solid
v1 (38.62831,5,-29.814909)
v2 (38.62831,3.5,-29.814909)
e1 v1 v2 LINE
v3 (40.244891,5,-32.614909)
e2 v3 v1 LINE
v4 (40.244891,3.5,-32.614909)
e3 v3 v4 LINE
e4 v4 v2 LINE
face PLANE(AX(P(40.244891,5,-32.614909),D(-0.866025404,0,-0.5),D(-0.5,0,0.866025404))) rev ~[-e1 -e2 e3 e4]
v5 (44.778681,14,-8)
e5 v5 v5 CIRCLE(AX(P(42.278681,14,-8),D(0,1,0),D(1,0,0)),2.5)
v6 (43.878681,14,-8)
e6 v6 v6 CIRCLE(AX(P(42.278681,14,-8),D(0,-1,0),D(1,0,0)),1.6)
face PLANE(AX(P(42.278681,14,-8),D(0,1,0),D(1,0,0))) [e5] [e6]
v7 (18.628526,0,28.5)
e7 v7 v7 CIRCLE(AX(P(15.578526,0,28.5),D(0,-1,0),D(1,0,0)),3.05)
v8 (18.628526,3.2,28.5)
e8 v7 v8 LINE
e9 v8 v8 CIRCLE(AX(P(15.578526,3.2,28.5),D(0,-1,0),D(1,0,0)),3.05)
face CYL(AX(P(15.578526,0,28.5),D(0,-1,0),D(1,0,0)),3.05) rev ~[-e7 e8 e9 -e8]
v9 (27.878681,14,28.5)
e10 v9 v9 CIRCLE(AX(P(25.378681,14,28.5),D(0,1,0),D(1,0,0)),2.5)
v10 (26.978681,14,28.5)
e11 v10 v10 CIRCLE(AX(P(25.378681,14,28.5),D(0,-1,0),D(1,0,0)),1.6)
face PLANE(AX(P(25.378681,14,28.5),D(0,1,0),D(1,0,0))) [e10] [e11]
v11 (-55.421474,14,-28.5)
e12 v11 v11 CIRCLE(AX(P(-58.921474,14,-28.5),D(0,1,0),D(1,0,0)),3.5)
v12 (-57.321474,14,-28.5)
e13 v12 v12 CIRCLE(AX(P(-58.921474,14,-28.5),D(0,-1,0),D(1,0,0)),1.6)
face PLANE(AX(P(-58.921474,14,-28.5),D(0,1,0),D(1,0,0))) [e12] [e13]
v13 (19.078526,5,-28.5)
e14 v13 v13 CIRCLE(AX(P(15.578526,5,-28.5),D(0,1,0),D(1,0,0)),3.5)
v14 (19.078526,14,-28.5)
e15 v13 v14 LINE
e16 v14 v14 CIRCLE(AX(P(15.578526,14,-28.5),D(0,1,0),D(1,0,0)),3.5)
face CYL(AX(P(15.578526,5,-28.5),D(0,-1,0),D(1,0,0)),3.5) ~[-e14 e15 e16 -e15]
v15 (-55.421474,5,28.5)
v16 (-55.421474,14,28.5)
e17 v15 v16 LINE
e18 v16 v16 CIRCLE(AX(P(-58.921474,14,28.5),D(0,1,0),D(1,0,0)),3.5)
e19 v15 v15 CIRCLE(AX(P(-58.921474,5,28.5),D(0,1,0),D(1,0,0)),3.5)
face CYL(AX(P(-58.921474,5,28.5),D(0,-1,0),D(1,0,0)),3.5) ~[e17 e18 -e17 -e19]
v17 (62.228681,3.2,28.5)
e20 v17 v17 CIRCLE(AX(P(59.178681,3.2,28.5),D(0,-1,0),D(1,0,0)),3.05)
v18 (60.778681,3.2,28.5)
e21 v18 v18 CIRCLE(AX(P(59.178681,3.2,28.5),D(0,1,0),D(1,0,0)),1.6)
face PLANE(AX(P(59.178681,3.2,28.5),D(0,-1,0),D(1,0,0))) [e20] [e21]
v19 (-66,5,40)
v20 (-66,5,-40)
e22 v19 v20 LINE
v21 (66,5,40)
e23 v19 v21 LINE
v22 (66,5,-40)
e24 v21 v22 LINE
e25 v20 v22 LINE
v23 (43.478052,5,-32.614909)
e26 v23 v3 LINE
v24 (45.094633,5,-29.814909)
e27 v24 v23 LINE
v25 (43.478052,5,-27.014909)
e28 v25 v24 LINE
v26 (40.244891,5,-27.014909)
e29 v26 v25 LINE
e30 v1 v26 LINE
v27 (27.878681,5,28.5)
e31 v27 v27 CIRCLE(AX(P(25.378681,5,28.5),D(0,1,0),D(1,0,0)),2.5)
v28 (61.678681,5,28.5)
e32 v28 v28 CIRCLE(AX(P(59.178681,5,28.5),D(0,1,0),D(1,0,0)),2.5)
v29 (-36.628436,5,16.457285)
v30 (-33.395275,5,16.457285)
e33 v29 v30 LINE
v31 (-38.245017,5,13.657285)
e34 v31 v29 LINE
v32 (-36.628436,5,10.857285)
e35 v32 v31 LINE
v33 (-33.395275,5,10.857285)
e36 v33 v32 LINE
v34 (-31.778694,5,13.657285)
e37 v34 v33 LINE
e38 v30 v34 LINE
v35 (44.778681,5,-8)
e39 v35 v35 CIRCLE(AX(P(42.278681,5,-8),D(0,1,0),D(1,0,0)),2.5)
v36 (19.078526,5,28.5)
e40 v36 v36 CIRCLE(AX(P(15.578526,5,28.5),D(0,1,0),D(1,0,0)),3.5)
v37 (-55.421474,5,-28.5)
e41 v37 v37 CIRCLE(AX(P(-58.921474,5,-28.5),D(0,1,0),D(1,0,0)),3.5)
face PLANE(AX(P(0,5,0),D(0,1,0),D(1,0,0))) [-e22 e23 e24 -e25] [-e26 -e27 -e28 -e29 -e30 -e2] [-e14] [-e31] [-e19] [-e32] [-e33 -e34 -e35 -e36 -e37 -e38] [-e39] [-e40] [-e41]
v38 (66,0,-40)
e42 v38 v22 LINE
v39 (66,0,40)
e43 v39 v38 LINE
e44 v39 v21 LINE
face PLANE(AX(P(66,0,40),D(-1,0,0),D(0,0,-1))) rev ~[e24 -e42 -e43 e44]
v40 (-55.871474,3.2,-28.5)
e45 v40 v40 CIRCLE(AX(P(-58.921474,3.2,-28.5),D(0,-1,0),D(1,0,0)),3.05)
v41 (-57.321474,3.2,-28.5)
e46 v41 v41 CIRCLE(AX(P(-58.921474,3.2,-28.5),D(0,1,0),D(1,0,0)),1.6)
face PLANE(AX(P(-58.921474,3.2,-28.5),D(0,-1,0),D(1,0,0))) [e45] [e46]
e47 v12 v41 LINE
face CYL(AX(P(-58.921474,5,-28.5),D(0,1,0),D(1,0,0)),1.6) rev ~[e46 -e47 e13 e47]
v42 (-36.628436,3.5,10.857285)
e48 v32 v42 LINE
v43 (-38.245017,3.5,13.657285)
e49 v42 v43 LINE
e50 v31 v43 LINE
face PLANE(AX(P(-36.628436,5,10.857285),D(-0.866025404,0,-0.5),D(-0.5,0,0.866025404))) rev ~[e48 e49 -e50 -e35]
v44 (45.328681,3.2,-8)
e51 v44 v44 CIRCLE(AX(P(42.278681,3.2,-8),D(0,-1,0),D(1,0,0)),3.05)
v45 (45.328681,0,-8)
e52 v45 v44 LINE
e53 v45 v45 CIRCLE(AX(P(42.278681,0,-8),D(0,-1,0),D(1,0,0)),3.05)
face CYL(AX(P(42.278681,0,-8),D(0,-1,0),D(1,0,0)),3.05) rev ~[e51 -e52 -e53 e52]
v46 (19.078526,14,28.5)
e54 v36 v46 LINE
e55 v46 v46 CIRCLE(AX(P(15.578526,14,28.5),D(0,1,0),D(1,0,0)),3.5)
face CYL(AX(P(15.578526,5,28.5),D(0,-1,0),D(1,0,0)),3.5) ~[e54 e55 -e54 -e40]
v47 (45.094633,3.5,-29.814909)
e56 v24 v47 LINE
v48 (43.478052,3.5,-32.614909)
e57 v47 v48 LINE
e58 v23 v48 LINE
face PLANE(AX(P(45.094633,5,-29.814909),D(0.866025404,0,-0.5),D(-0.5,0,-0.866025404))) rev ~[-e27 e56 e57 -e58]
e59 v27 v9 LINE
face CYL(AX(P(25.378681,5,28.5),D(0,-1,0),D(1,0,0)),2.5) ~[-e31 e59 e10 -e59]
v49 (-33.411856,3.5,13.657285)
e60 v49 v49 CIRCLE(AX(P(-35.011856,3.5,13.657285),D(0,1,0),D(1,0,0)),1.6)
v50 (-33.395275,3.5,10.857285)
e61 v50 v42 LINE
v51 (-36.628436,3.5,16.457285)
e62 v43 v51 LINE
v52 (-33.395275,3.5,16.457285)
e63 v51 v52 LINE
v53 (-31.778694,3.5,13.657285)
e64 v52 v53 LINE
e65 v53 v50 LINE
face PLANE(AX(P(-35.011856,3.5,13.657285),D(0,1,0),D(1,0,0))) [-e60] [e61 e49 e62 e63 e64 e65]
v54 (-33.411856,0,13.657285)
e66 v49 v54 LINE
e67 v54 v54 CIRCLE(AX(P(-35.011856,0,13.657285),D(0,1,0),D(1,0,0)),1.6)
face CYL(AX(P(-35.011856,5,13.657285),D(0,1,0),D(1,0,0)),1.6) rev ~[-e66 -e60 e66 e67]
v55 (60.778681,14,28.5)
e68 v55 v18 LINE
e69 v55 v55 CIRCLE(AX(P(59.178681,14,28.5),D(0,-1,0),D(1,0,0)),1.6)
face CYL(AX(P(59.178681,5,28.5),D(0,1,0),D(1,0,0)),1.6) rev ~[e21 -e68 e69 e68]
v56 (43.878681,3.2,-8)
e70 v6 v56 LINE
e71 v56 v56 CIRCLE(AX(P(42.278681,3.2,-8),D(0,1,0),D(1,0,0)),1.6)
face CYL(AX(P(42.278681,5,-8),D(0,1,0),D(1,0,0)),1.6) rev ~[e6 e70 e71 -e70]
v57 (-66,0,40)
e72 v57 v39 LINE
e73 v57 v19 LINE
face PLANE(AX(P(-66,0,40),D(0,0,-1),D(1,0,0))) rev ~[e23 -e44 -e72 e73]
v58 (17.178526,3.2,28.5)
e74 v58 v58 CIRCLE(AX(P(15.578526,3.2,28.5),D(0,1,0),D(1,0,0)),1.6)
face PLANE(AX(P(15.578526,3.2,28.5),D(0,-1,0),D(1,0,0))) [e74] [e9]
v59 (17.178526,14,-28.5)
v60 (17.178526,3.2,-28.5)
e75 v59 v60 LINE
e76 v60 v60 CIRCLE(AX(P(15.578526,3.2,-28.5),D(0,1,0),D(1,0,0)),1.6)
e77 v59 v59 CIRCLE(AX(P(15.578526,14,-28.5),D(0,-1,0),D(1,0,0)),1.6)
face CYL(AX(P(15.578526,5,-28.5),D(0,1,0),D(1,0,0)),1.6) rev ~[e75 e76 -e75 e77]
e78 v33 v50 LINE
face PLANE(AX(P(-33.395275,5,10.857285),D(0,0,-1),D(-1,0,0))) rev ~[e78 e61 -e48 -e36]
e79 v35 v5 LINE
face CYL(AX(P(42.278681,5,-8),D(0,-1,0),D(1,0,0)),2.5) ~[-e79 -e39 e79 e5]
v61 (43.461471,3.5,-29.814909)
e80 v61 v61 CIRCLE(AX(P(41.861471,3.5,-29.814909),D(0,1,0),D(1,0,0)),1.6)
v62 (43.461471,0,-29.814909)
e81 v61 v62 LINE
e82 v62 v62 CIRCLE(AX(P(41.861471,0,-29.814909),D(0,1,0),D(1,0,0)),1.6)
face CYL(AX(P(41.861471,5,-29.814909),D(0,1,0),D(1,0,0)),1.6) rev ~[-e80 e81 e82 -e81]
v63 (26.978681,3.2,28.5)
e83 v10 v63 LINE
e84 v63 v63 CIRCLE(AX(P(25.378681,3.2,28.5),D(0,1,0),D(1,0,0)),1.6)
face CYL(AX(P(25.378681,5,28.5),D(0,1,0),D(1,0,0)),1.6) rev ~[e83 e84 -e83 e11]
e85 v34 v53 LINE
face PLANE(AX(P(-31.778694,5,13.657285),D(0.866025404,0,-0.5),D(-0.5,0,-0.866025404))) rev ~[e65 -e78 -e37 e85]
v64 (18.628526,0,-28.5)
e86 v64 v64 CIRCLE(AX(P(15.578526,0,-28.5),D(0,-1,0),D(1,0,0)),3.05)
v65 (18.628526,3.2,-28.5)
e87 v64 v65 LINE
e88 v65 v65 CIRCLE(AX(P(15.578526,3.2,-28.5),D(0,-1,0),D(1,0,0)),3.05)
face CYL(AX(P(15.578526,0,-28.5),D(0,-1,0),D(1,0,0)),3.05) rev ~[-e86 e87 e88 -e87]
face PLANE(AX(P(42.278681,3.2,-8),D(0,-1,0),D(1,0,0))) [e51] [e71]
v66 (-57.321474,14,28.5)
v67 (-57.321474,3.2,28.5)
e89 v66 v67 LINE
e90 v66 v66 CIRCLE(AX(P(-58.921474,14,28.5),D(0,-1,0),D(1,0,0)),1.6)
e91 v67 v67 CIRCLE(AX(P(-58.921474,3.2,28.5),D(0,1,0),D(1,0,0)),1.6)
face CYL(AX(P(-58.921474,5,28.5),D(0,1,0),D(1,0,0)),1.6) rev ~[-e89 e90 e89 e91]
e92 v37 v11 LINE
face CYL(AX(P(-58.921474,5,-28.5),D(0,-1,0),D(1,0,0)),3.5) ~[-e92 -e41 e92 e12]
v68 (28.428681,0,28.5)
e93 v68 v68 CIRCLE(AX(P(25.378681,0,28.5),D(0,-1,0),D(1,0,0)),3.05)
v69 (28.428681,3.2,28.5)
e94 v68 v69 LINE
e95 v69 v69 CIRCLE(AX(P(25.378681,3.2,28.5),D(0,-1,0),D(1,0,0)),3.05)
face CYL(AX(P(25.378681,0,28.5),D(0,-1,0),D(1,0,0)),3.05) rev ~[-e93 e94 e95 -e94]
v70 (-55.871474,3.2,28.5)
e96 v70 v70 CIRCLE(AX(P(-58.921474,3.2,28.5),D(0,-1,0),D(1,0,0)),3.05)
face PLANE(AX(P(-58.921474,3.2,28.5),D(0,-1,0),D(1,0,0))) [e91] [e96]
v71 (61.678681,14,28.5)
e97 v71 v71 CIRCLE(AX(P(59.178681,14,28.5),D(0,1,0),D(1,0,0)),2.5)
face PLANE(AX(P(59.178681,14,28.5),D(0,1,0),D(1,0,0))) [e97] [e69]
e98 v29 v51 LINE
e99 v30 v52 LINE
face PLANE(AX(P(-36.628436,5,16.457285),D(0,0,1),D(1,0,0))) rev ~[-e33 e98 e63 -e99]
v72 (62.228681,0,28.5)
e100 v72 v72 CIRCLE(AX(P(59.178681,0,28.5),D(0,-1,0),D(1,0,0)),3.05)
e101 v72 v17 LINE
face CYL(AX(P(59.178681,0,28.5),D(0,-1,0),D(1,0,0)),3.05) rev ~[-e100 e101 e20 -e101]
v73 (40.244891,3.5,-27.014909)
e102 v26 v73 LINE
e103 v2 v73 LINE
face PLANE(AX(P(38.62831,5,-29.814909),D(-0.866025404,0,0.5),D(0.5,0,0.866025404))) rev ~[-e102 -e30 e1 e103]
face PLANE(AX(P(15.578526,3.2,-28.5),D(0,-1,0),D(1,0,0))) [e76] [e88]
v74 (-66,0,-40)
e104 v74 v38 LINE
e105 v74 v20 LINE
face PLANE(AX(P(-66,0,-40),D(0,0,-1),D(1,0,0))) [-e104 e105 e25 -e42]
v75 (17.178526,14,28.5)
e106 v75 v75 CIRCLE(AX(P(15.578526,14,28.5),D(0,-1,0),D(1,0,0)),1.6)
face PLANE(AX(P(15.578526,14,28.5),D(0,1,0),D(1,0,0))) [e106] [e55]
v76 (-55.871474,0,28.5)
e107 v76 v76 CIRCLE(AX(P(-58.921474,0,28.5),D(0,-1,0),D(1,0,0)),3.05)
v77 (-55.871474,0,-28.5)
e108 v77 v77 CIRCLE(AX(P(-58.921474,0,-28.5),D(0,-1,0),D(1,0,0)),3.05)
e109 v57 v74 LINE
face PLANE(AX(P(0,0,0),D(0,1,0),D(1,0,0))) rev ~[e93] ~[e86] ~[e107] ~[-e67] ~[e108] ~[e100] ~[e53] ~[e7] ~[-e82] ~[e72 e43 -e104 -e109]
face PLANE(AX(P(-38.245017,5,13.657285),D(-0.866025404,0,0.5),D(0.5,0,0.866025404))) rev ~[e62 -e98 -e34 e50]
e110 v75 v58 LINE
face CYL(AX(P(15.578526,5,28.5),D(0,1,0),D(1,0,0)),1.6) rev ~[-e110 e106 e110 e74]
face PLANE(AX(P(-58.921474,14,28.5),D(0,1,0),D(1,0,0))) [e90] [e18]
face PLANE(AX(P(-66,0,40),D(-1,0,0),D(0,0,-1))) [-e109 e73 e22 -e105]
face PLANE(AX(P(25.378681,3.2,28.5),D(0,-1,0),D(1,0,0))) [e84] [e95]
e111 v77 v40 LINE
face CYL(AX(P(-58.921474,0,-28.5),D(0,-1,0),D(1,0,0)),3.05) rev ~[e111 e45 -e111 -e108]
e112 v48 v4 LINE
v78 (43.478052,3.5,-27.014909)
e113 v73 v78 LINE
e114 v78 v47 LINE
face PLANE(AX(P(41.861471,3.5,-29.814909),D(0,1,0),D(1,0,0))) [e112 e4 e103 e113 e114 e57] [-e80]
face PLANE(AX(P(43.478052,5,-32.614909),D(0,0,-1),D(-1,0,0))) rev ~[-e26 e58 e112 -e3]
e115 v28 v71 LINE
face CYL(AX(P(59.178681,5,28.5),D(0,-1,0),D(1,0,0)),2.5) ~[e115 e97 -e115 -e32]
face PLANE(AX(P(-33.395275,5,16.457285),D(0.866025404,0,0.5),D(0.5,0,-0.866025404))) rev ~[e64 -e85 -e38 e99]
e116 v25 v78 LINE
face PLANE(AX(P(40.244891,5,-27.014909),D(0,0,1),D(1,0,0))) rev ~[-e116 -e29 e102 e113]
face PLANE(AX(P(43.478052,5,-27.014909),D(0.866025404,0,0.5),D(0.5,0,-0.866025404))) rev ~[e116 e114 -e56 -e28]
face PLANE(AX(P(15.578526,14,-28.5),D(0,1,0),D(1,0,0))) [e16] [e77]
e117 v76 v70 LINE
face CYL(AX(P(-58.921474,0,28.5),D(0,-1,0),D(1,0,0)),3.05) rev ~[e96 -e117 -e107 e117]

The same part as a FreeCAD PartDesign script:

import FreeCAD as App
import Part
import Sketcher

V = App.Vector
Q = App.Units.Quantity

doc = App.newDocument("Part")
body = doc.addObject("PartDesign::Body", "Body")

sketch1 = body.newObject("Sketcher::SketchObject", "Sketch")
sketch1.AttachmentSupport = (doc.getObject("XZ_Plane"), [""])
sketch1.MapMode = "FlatFace"
sketch1.addGeometry(Part.LineSegment(V(-66, -40, 0), V(-66, 40, 0)), False)
sketch1.addGeometry(Part.LineSegment(V(-66, 40, 0), V(66, 40, 0)), False)
sketch1.addGeometry(Part.LineSegment(V(66, 40, 0), V(66, -40, 0)), False)
sketch1.addGeometry(Part.LineSegment(V(66, -40, 0), V(-66, -40, 0)), False)
sketch1.addConstraint(Sketcher.Constraint("Coincident", 0, 2, 1, 1))
sketch1.addConstraint(Sketcher.Constraint("Coincident", 1, 2, 2, 1))
sketch1.addConstraint(Sketcher.Constraint("Coincident", 2, 2, 3, 1))
sketch1.addConstraint(Sketcher.Constraint("Coincident", 3, 2, 0, 1))
sketch1.addConstraint(Sketcher.Constraint("Vertical", 0))
sketch1.addConstraint(Sketcher.Constraint("Horizontal", 1))
sketch1.addConstraint(Sketcher.Constraint("Vertical", 2))
sketch1.addConstraint(Sketcher.Constraint("Horizontal", 3))
sketch1.addConstraint(Sketcher.Constraint("Symmetric", 0, 2, 2, 2, -1, 1))
sketch1.addConstraint(Sketcher.Constraint("DistanceX", 1, 1, 1, 2, Q("132 mm")))
sketch1.addConstraint(Sketcher.Constraint("DistanceY", 0, 1, 0, 2, Q("80 mm")))
pad1 = body.newObject("PartDesign::Pad", "Pad")
pad1.Profile = sketch1
pad1.Length = 5
pad1.Reversed = True

sketch2 = body.newObject("Sketcher::SketchObject", "Sketch001")
sketch2.AttachmentSupport = (doc.getObject("XZ_Plane"), [""])
sketch2.MapMode = "FlatFace"
sketch2.AttachmentOffset = App.Placement(V(0, 0, -5), App.Rotation())
sketch2.addGeometry(Part.Circle(V(-58.9, -28.5, 0), V(0, 0, 1), 3.5), False)
sketch2.addGeometry(Part.Circle(V(15.6, -28.5, 0), V(0, 0, 1), 3.5), False)
sketch2.addGeometry(Part.Circle(V(15.6, 28.5, 0), V(0, 0, 1), 3.5), False)
sketch2.addGeometry(Part.Circle(V(-58.9, 28.5, 0), V(0, 0, 1), 3.5), False)
sketch2.addGeometry(Part.Circle(V(25.4, 28.5, 0), V(0, 0, 1), 2.5), False)
sketch2.addGeometry(Part.Circle(V(59.2, 28.5, 0), V(0, 0, 1), 2.5), False)
sketch2.addGeometry(Part.Circle(V(42.3, -8, 0), V(0, 0, 1), 2.5), False)
sketch2.addConstraint(Sketcher.Constraint("Equal", 0, 1))
sketch2.addConstraint(Sketcher.Constraint("Equal", 1, 2))
sketch2.addConstraint(Sketcher.Constraint("Equal", 2, 3))
sketch2.addConstraint(Sketcher.Constraint("Equal", 4, 5))
sketch2.addConstraint(Sketcher.Constraint("Equal", 5, 6))
sketch2.addConstraint(Sketcher.Constraint("Symmetric", 1, 3, 2, 3, -1))
sketch2.addConstraint(Sketcher.Constraint("Symmetric", 0, 3, 3, 3, -1))
sketch2.addConstraint(Sketcher.Constraint("Horizontal", 0, 3, 1, 3))
sketch2.addConstraint(Sketcher.Constraint("Horizontal", 3, 3, 4, 3))
sketch2.addConstraint(Sketcher.Constraint("Horizontal", 4, 3, 5, 3))
sketch2.addConstraint(Sketcher.Constraint("Diameter", 0, Q("7 mm")))
sketch2.addConstraint(Sketcher.Constraint("Diameter", 4, Q("5 mm")))
sketch2.addConstraint(Sketcher.Constraint("DistanceY", 6, 3, -1, 1, Q("8 mm")))
sketch2.addConstraint(Sketcher.Constraint("DistanceY", 1, 3, 2, 3, Q("57 mm")))
sketch2.addConstraint(Sketcher.Constraint("DistanceX", 0, 3, 1, 3, Q("74.5 mm")))
sketch2.addConstraint(Sketcher.Constraint("DistanceX", 4, 3, 5, 3, Q("33.8 mm")))
sketch2.addConstraint(Sketcher.Constraint("DistanceX", 4, 3, 6, 3, Q("16.9 mm")))
sketch2.addConstraint(Sketcher.Constraint("DistanceX", -1, 1, 4, 3, Q("25.378681 mm")))
sketch2.addConstraint(Sketcher.Constraint("DistanceX", 0, 3, -1, 1, Q("58.921474 mm")))
pad2 = body.newObject("PartDesign::Pad", "Pad001")
pad2.Profile = sketch2
pad2.Length = 9
pad2.Reversed = True

sketch3 = body.newObject("Sketcher::SketchObject", "Sketch002")
sketch3.AttachmentSupport = (doc.getObject("XZ_Plane"), [""])
sketch3.MapMode = "FlatFace"
sketch3.AttachmentOffset = App.Placement(V(0, 0, -5), App.Rotation())
sketch3.addGeometry(Part.Circle(V(42.3, -8, 0), V(0, 0, 1), 1.6), False)
sketch3.addConstraint(Sketcher.Constraint("Diameter", 0, Q("3.2 mm")))
sketch3.addConstraint(Sketcher.Constraint("DistanceY", 0, 3, -1, 1, Q("8 mm")))
sketch3.addConstraint(Sketcher.Constraint("DistanceX", -1, 1, 0, 3, Q("42.278681 mm")))
pocket1 = body.newObject("PartDesign::Pocket", "Pocket")
pocket1.Profile = sketch3
pocket1.Type = "UpToFirst"
pocket1.Reversed = True

sketch4 = body.newObject("Sketcher::SketchObject", "Sketch003")
sketch4.AttachmentSupport = (doc.getObject("XZ_Plane"), [""])
sketch4.MapMode = "FlatFace"
sketch4.AttachmentOffset = App.Placement(V(0, 0, -5), App.Rotation())
sketch4.addGeometry(Part.Circle(V(25.4, 28.5, 0), V(0, 0, 1), 1.6), False)
sketch4.addConstraint(Sketcher.Constraint("Diameter", 0, Q("3.2 mm")))
sketch4.addConstraint(Sketcher.Constraint("DistanceY", -1, 1, 0, 3, Q("28.5 mm")))
sketch4.addConstraint(Sketcher.Constraint("DistanceX", -1, 1, 0, 3, Q("25.378681 mm")))
pocket2 = body.newObject("PartDesign::Pocket", "Pocket001")
pocket2.Profile = sketch4
pocket2.Type = "UpToFirst"
pocket2.Reversed = True

sketch5 = body.newObject("Sketcher::SketchObject", "Sketch004")
sketch5.AttachmentSupport = (doc.getObject("XZ_Plane"), [""])
sketch5.MapMode = "FlatFace"
sketch5.AttachmentOffset = App.Placement(V(0, 0, -5), App.Rotation())
sketch5.addGeometry(Part.Circle(V(59.2, 28.5, 0), V(0, 0, 1), 1.6), False)
sketch5.addConstraint(Sketcher.Constraint("Diameter", 0, Q("3.2 mm")))
sketch5.addConstraint(Sketcher.Constraint("DistanceY", -1, 1, 0, 3, Q("28.5 mm")))
sketch5.addConstraint(Sketcher.Constraint("DistanceX", -1, 1, 0, 3, Q("59.178681 mm")))
pocket3 = body.newObject("PartDesign::Pocket", "Pocket002")
pocket3.Profile = sketch5
pocket3.Type = "UpToFirst"
pocket3.Reversed = True

sketch6 = body.newObject("Sketcher::SketchObject", "Sketch005")
sketch6.AttachmentSupport = (doc.getObject("XZ_Plane"), [""])
sketch6.MapMode = "FlatFace"
sketch6.AttachmentOffset = App.Placement(V(0, 0, -5), App.Rotation())
sketch6.addGeometry(Part.Circle(V(15.6, -28.5, 0), V(0, 0, 1), 1.6), False)
sketch6.addConstraint(Sketcher.Constraint("Diameter", 0, Q("3.2 mm")))
sketch6.addConstraint(Sketcher.Constraint("DistanceY", 0, 3, -1, 1, Q("28.5 mm")))
sketch6.addConstraint(Sketcher.Constraint("DistanceX", -1, 1, 0, 3, Q("15.578526 mm")))
pocket4 = body.newObject("PartDesign::Pocket", "Pocket003")
pocket4.Profile = sketch6
pocket4.Type = "UpToFirst"
pocket4.Reversed = True

sketch7 = body.newObject("Sketcher::SketchObject", "Sketch006")
sketch7.AttachmentSupport = (doc.getObject("XZ_Plane"), [""])
sketch7.MapMode = "FlatFace"
sketch7.AttachmentOffset = App.Placement(V(0, 0, -5), App.Rotation())
sketch7.addGeometry(Part.Circle(V(15.6, 28.5, 0), V(0, 0, 1), 1.6), False)
sketch7.addConstraint(Sketcher.Constraint("Diameter", 0, Q("3.2 mm")))
sketch7.addConstraint(Sketcher.Constraint("DistanceY", -1, 1, 0, 3, Q("28.5 mm")))
sketch7.addConstraint(Sketcher.Constraint("DistanceX", -1, 1, 0, 3, Q("15.578526 mm")))
pocket5 = body.newObject("PartDesign::Pocket", "Pocket004")
pocket5.Profile = sketch7
pocket5.Type = "UpToFirst"
pocket5.Reversed = True

sketch8 = body.newObject("Sketcher::SketchObject", "Sketch007")
sketch8.AttachmentSupport = (doc.getObject("XZ_Plane"), [""])
sketch8.MapMode = "FlatFace"
sketch8.AttachmentOffset = App.Placement(V(0, 0, -5), App.Rotation())
sketch8.addGeometry(Part.Circle(V(-58.9, 28.5, 0), V(0, 0, 1), 1.6), False)
sketch8.addConstraint(Sketcher.Constraint("Diameter", 0, Q("3.2 mm")))
sketch8.addConstraint(Sketcher.Constraint("DistanceY", -1, 1, 0, 3, Q("28.5 mm")))
sketch8.addConstraint(Sketcher.Constraint("DistanceX", 0, 3, -1, 1, Q("58.921474 mm")))
pocket6 = body.newObject("PartDesign::Pocket", "Pocket005")
pocket6.Profile = sketch8
pocket6.Type = "UpToFirst"
pocket6.Reversed = True

sketch9 = body.newObject("Sketcher::SketchObject", "Sketch008")
sketch9.AttachmentSupport = (doc.getObject("XZ_Plane"), [""])
sketch9.MapMode = "FlatFace"
sketch9.AttachmentOffset = App.Placement(V(0, 0, -5), App.Rotation())
sketch9.addGeometry(Part.Circle(V(-58.9, -28.5, 0), V(0, 0, 1), 1.6), False)
sketch9.addConstraint(Sketcher.Constraint("Diameter", 0, Q("3.2 mm")))
sketch9.addConstraint(Sketcher.Constraint("DistanceY", 0, 3, -1, 1, Q("28.5 mm")))
sketch9.addConstraint(Sketcher.Constraint("DistanceX", 0, 3, -1, 1, Q("58.921474 mm")))
pocket7 = body.newObject("PartDesign::Pocket", "Pocket006")
pocket7.Profile = sketch9
pocket7.Type = "UpToFirst"
pocket7.Reversed = True

sketch10 = body.newObject("Sketcher::SketchObject", "Sketch009")
sketch10.AttachmentSupport = (doc.getObject("XZ_Plane"), [""])
sketch10.MapMode = "FlatFace"
sketch10.AttachmentOffset = App.Placement(V(0, 0, -5), App.Rotation())
sketch10.addGeometry(Part.Circle(V(42.3, -8, 0), V(0, 0, 1), 1.6), False)
sketch10.addConstraint(Sketcher.Constraint("Diameter", 0, Q("3.2 mm")))
sketch10.addConstraint(Sketcher.Constraint("DistanceY", 0, 3, -1, 1, Q("8 mm")))
sketch10.addConstraint(Sketcher.Constraint("DistanceX", -1, 1, 0, 3, Q("42.278681 mm")))
pocket8 = body.newObject("PartDesign::Pocket", "Pocket007")
pocket8.Profile = sketch10
pocket8.Type = "UpToFirst"

sketch11 = body.newObject("Sketcher::SketchObject", "Sketch010")
sketch11.AttachmentSupport = (doc.getObject("XZ_Plane"), [""])
sketch11.MapMode = "FlatFace"
sketch11.AttachmentOffset = App.Placement(V(0, 0, -5), App.Rotation())
sketch11.addGeometry(Part.Circle(V(25.4, 28.5, 0), V(0, 0, 1), 1.6), False)
sketch11.addConstraint(Sketcher.Constraint("Diameter", 0, Q("3.2 mm")))
sketch11.addConstraint(Sketcher.Constraint("DistanceY", -1, 1, 0, 3, Q("28.5 mm")))
sketch11.addConstraint(Sketcher.Constraint("DistanceX", -1, 1, 0, 3, Q("25.378681 mm")))
pocket9 = body.newObject("PartDesign::Pocket", "Pocket008")
pocket9.Profile = sketch11
pocket9.Type = "UpToFirst"

sketch12 = body.newObject("Sketcher::SketchObject", "Sketch011")
sketch12.AttachmentSupport = (doc.getObject("XZ_Plane"), [""])
sketch12.MapMode = "FlatFace"
sketch12.AttachmentOffset = App.Placement(V(0, 0, -5), App.Rotation())
sketch12.addGeometry(Part.Circle(V(59.2, 28.5, 0), V(0, 0, 1), 1.6), False)
sketch12.addConstraint(Sketcher.Constraint("Diameter", 0, Q("3.2 mm")))
sketch12.addConstraint(Sketcher.Constraint("DistanceY", -1, 1, 0, 3, Q("28.5 mm")))
sketch12.addConstraint(Sketcher.Constraint("DistanceX", -1, 1, 0, 3, Q("59.178681 mm")))
pocket10 = body.newObject("PartDesign::Pocket", "Pocket009")
pocket10.Profile = sketch12
pocket10.Type = "UpToFirst"

sketch13 = body.newObject("Sketcher::SketchObject", "Sketch012")
sketch13.AttachmentSupport = (doc.getObject("XZ_Plane"), [""])
sketch13.MapMode = "FlatFace"
sketch13.AttachmentOffset = App.Placement(V(0, 0, -5), App.Rotation())
sketch13.addGeometry(Part.Circle(V(15.6, -28.5, 0), V(0, 0, 1), 1.6), False)
sketch13.addConstraint(Sketcher.Constraint("Diameter", 0, Q("3.2 mm")))
sketch13.addConstraint(Sketcher.Constraint("DistanceY", 0, 3, -1, 1, Q("28.5 mm")))
sketch13.addConstraint(Sketcher.Constraint("DistanceX", -1, 1, 0, 3, Q("15.578526 mm")))
pocket11 = body.newObject("PartDesign::Pocket", "Pocket010")
pocket11.Profile = sketch13
pocket11.Type = "UpToFirst"

sketch14 = body.newObject("Sketcher::SketchObject", "Sketch013")
sketch14.AttachmentSupport = (doc.getObject("XZ_Plane"), [""])
sketch14.MapMode = "FlatFace"
sketch14.AttachmentOffset = App.Placement(V(0, 0, -5), App.Rotation())
sketch14.addGeometry(Part.Circle(V(15.6, 28.5, 0), V(0, 0, 1), 1.6), False)
sketch14.addConstraint(Sketcher.Constraint("Diameter", 0, Q("3.2 mm")))
sketch14.addConstraint(Sketcher.Constraint("DistanceY", -1, 1, 0, 3, Q("28.5 mm")))
sketch14.addConstraint(Sketcher.Constraint("DistanceX", -1, 1, 0, 3, Q("15.578526 mm")))
pocket12 = body.newObject("PartDesign::Pocket", "Pocket011")
pocket12.Profile = sketch14
pocket12.Type = "UpToFirst"

sketch15 = body.newObject("Sketcher::SketchObject", "Sketch014")
sketch15.AttachmentSupport = (doc.getObject("XZ_Plane"), [""])
sketch15.MapMode = "FlatFace"
sketch15.AttachmentOffset = App.Placement(V(0, 0, -5), App.Rotation())
sketch15.addGeometry(Part.Circle(V(-58.9, 28.5, 0), V(0, 0, 1), 1.6), False)
sketch15.addConstraint(Sketcher.Constraint("Diameter", 0, Q("3.2 mm")))
sketch15.addConstraint(Sketcher.Constraint("DistanceY", -1, 1, 0, 3, Q("28.5 mm")))
sketch15.addConstraint(Sketcher.Constraint("DistanceX", 0, 3, -1, 1, Q("58.921474 mm")))
pocket13 = body.newObject("PartDesign::Pocket", "Pocket012")
pocket13.Profile = sketch15
pocket13.Type = "UpToFirst"

sketch16 = body.newObject("Sketcher::SketchObject", "Sketch015")
sketch16.AttachmentSupport = (doc.getObject("XZ_Plane"), [""])
sketch16.MapMode = "FlatFace"
sketch16.AttachmentOffset = App.Placement(V(0, 0, -5), App.Rotation())
sketch16.addGeometry(Part.Circle(V(-58.9, -28.5, 0), V(0, 0, 1), 1.6), False)
sketch16.addConstraint(Sketcher.Constraint("Diameter", 0, Q("3.2 mm")))
sketch16.addConstraint(Sketcher.Constraint("DistanceY", 0, 3, -1, 1, Q("28.5 mm")))
sketch16.addConstraint(Sketcher.Constraint("DistanceX", 0, 3, -1, 1, Q("58.921474 mm")))
pocket14 = body.newObject("PartDesign::Pocket", "Pocket013")
pocket14.Profile = sketch16
pocket14.Type = "UpToFirst"

sketch17 = body.newObject("Sketcher::SketchObject", "Sketch016")
sketch17.AttachmentSupport = (doc.getObject("XZ_Plane"), [""])
sketch17.MapMode = "FlatFace"
sketch17.addGeometry(Part.Circle(V(42.3, -8, 0), V(0, 0, 1), 3), False)
sketch17.addGeometry(Part.Circle(V(59.2, 28.5, 0), V(0, 0, 1), 3), False)
sketch17.addGeometry(Part.Circle(V(25.4, 28.5, 0), V(0, 0, 1), 3), False)
sketch17.addGeometry(Part.Circle(V(15.6, 28.5, 0), V(0, 0, 1), 3), False)
sketch17.addGeometry(Part.Circle(V(15.6, -28.5, 0), V(0, 0, 1), 3), False)
sketch17.addGeometry(Part.Circle(V(-58.9, -28.5, 0), V(0, 0, 1), 3), False)
sketch17.addGeometry(Part.Circle(V(-58.9, 28.5, 0), V(0, 0, 1), 3), False)
sketch17.addConstraint(Sketcher.Constraint("Equal", 0, 1))
sketch17.addConstraint(Sketcher.Constraint("Equal", 1, 2))
sketch17.addConstraint(Sketcher.Constraint("Equal", 2, 3))
sketch17.addConstraint(Sketcher.Constraint("Equal", 3, 4))
sketch17.addConstraint(Sketcher.Constraint("Equal", 4, 5))
sketch17.addConstraint(Sketcher.Constraint("Equal", 5, 6))
sketch17.addConstraint(Sketcher.Constraint("Symmetric", 3, 3, 4, 3, -1))
sketch17.addConstraint(Sketcher.Constraint("Symmetric", 5, 3, 6, 3, -1))
sketch17.addConstraint(Sketcher.Constraint("Horizontal", 1, 3, 2, 3))
sketch17.addConstraint(Sketcher.Constraint("Horizontal", 2, 3, 3, 3))
sketch17.addConstraint(Sketcher.Constraint("Horizontal", 4, 3, 5, 3))
sketch17.addConstraint(Sketcher.Constraint("Diameter", 0, Q("6.1 mm")))
sketch17.addConstraint(Sketcher.Constraint("DistanceY", 0, 3, -1, 1, Q("8 mm")))
sketch17.addConstraint(Sketcher.Constraint("DistanceY", 4, 3, 3, 3, Q("57 mm")))
sketch17.addConstraint(Sketcher.Constraint("DistanceX", 0, 3, 1, 3, Q("16.9 mm")))
sketch17.addConstraint(Sketcher.Constraint("DistanceX", 2, 3, 1, 3, Q("33.8 mm")))
sketch17.addConstraint(Sketcher.Constraint("DistanceX", 5, 3, 4, 3, Q("74.5 mm")))
sketch17.addConstraint(Sketcher.Constraint("DistanceX", -1, 1, 0, 3, Q("42.278681 mm")))
sketch17.addConstraint(Sketcher.Constraint("DistanceX", -1, 1, 3, 3, Q("15.578526 mm")))
pocket15 = body.newObject("PartDesign::Pocket", "Pocket014")
pocket15.Profile = sketch17
pocket15.Length = 3.2

sketch18 = body.newObject("Sketcher::SketchObject", "Sketch017")
sketch18.AttachmentSupport = (doc.getObject("XZ_Plane"), [""])
sketch18.MapMode = "FlatFace"
sketch18.AttachmentOffset = App.Placement(V(0, 0, -5), App.Rotation())
sketch18.addGeometry(Part.Circle(V(-35, 13.7, 0), V(0, 0, 1), 1.6), False)
sketch18.addConstraint(Sketcher.Constraint("Diameter", 0, Q("3.2 mm")))
sketch18.addConstraint(Sketcher.Constraint("DistanceX", 0, 3, -1, 1, Q("35.011856 mm")))
sketch18.addConstraint(Sketcher.Constraint("DistanceY", -1, 1, 0, 3, Q("13.657285 mm")))
pocket16 = body.newObject("PartDesign::Pocket", "Pocket015")
pocket16.Profile = sketch18
pocket16.Type = "UpToFirst"
pocket16.Reversed = True

sketch19 = body.newObject("Sketcher::SketchObject", "Sketch018")
sketch19.AttachmentSupport = (doc.getObject("XZ_Plane"), [""])
sketch19.MapMode = "FlatFace"
sketch19.AttachmentOffset = App.Placement(V(0, 0, -5), App.Rotation())
sketch19.addGeometry(Part.Circle(V(41.9, -29.8, 0), V(0, 0, 1), 1.6), False)
sketch19.addConstraint(Sketcher.Constraint("Diameter", 0, Q("3.2 mm")))
sketch19.addConstraint(Sketcher.Constraint("DistanceX", -1, 1, 0, 3, Q("41.861471 mm")))
sketch19.addConstraint(Sketcher.Constraint("DistanceY", 0, 3, -1, 1, Q("29.814909 mm")))
pocket17 = body.newObject("PartDesign::Pocket", "Pocket016")
pocket17.Profile = sketch19
pocket17.Type = "UpToFirst"
pocket17.Reversed = True

sketch20 = body.newObject("Sketcher::SketchObject", "Sketch019")
sketch20.AttachmentSupport = (doc.getObject("XZ_Plane"), [""])
sketch20.MapMode = "FlatFace"
sketch20.AttachmentOffset = App.Placement(V(0, 0, -5), App.Rotation())
sketch20.addGeometry(Part.LineSegment(V(-33.4, 16.5, 0), V(-31.8, 13.7, 0)), False)
sketch20.addGeometry(Part.LineSegment(V(-31.8, 13.7, 0), V(-33.4, 10.9, 0)), False)
sketch20.addGeometry(Part.LineSegment(V(-33.4, 10.9, 0), V(-36.6, 10.9, 0)), False)
sketch20.addGeometry(Part.LineSegment(V(-36.6, 10.9, 0), V(-38.2, 13.7, 0)), False)
sketch20.addGeometry(Part.LineSegment(V(-38.2, 13.7, 0), V(-36.6, 16.5, 0)), False)
sketch20.addGeometry(Part.LineSegment(V(-36.6, 16.5, 0), V(-33.4, 16.5, 0)), False)
sketch20.addGeometry(Part.LineSegment(V(43.5, -27, 0), V(45.1, -29.8, 0)), False)
sketch20.addGeometry(Part.LineSegment(V(45.1, -29.8, 0), V(43.5, -32.6, 0)), False)
sketch20.addGeometry(Part.LineSegment(V(43.5, -32.6, 0), V(40.2, -32.6, 0)), False)
sketch20.addGeometry(Part.LineSegment(V(40.2, -32.6, 0), V(38.6, -29.8, 0)), False)
sketch20.addGeometry(Part.LineSegment(V(38.6, -29.8, 0), V(40.2, -27, 0)), False)
sketch20.addGeometry(Part.LineSegment(V(40.2, -27, 0), V(43.5, -27, 0)), False)
sketch20.addConstraint(Sketcher.Constraint("Coincident", 0, 2, 1, 1))
sketch20.addConstraint(Sketcher.Constraint("Coincident", 1, 2, 2, 1))
sketch20.addConstraint(Sketcher.Constraint("Coincident", 2, 2, 3, 1))
sketch20.addConstraint(Sketcher.Constraint("Coincident", 3, 2, 4, 1))
sketch20.addConstraint(Sketcher.Constraint("Coincident", 4, 2, 5, 1))
sketch20.addConstraint(Sketcher.Constraint("Coincident", 5, 2, 0, 1))
sketch20.addConstraint(Sketcher.Constraint("Coincident", 6, 2, 7, 1))
sketch20.addConstraint(Sketcher.Constraint("Coincident", 7, 2, 8, 1))
sketch20.addConstraint(Sketcher.Constraint("Coincident", 8, 2, 9, 1))
sketch20.addConstraint(Sketcher.Constraint("Coincident", 9, 2, 10, 1))
sketch20.addConstraint(Sketcher.Constraint("Coincident", 10, 2, 11, 1))
sketch20.addConstraint(Sketcher.Constraint("Coincident", 11, 2, 6, 1))
sketch20.addConstraint(Sketcher.Constraint("Horizontal", 2))
sketch20.addConstraint(Sketcher.Constraint("Horizontal", 5))
sketch20.addConstraint(Sketcher.Constraint("Horizontal", 8))
sketch20.addConstraint(Sketcher.Constraint("Horizontal", 11))
sketch20.addConstraint(Sketcher.Constraint("Parallel", 0, 3))
sketch20.addConstraint(Sketcher.Constraint("Parallel", 1, 4))
sketch20.addConstraint(Sketcher.Constraint("Parallel", 3, 6))
sketch20.addConstraint(Sketcher.Constraint("Parallel", 4, 7))
sketch20.addConstraint(Sketcher.Constraint("Parallel", 6, 9))
sketch20.addConstraint(Sketcher.Constraint("Parallel", 7, 10))
sketch20.addConstraint(Sketcher.Constraint("Horizontal", 0, 2, 3, 2))
sketch20.addConstraint(Sketcher.Constraint("Horizontal", 6, 2, 9, 2))
sketch20.addConstraint(Sketcher.Constraint("Vertical", 2, 2, 4, 2))
sketch20.addConstraint(Sketcher.Constraint("Vertical", 1, 2, 5, 2))
sketch20.addConstraint(Sketcher.Constraint("Vertical", 8, 2, 10, 2))
sketch20.addConstraint(Sketcher.Constraint("Equal", 5, 8))
sketch20.addConstraint(Sketcher.Constraint("Equal", 4, 6))
sketch20.addConstraint(Sketcher.Constraint("Angle", 0, Q("-60 deg")))
sketch20.addConstraint(Sketcher.Constraint("DistanceY", 1, 2, 0, 2, Q("2.8 mm")))
sketch20.addConstraint(Sketcher.Constraint("DistanceX", 2, 2, 2, 1, Q("3.233162 mm")))
sketch20.addConstraint(Sketcher.Constraint("DistanceY", 6, 2, -1, 1, Q("29.814909 mm")))
sketch20.addConstraint(Sketcher.Constraint("DistanceX", -1, 1, 8, 2, Q("40.244891 mm")))
sketch20.addConstraint(Sketcher.Constraint("DistanceX", 2, 2, 6, 2, Q("81.723069 mm")))
sketch20.addConstraint(Sketcher.Constraint("DistanceY", -1, 1, 0, 2, Q("13.657285 mm")))
pocket18 = body.newObject("PartDesign::Pocket", "Pocket017")
pocket18.Profile = sketch20
pocket18.Length = 1.5
pocket18.Reversed = True

doc.recompute()
